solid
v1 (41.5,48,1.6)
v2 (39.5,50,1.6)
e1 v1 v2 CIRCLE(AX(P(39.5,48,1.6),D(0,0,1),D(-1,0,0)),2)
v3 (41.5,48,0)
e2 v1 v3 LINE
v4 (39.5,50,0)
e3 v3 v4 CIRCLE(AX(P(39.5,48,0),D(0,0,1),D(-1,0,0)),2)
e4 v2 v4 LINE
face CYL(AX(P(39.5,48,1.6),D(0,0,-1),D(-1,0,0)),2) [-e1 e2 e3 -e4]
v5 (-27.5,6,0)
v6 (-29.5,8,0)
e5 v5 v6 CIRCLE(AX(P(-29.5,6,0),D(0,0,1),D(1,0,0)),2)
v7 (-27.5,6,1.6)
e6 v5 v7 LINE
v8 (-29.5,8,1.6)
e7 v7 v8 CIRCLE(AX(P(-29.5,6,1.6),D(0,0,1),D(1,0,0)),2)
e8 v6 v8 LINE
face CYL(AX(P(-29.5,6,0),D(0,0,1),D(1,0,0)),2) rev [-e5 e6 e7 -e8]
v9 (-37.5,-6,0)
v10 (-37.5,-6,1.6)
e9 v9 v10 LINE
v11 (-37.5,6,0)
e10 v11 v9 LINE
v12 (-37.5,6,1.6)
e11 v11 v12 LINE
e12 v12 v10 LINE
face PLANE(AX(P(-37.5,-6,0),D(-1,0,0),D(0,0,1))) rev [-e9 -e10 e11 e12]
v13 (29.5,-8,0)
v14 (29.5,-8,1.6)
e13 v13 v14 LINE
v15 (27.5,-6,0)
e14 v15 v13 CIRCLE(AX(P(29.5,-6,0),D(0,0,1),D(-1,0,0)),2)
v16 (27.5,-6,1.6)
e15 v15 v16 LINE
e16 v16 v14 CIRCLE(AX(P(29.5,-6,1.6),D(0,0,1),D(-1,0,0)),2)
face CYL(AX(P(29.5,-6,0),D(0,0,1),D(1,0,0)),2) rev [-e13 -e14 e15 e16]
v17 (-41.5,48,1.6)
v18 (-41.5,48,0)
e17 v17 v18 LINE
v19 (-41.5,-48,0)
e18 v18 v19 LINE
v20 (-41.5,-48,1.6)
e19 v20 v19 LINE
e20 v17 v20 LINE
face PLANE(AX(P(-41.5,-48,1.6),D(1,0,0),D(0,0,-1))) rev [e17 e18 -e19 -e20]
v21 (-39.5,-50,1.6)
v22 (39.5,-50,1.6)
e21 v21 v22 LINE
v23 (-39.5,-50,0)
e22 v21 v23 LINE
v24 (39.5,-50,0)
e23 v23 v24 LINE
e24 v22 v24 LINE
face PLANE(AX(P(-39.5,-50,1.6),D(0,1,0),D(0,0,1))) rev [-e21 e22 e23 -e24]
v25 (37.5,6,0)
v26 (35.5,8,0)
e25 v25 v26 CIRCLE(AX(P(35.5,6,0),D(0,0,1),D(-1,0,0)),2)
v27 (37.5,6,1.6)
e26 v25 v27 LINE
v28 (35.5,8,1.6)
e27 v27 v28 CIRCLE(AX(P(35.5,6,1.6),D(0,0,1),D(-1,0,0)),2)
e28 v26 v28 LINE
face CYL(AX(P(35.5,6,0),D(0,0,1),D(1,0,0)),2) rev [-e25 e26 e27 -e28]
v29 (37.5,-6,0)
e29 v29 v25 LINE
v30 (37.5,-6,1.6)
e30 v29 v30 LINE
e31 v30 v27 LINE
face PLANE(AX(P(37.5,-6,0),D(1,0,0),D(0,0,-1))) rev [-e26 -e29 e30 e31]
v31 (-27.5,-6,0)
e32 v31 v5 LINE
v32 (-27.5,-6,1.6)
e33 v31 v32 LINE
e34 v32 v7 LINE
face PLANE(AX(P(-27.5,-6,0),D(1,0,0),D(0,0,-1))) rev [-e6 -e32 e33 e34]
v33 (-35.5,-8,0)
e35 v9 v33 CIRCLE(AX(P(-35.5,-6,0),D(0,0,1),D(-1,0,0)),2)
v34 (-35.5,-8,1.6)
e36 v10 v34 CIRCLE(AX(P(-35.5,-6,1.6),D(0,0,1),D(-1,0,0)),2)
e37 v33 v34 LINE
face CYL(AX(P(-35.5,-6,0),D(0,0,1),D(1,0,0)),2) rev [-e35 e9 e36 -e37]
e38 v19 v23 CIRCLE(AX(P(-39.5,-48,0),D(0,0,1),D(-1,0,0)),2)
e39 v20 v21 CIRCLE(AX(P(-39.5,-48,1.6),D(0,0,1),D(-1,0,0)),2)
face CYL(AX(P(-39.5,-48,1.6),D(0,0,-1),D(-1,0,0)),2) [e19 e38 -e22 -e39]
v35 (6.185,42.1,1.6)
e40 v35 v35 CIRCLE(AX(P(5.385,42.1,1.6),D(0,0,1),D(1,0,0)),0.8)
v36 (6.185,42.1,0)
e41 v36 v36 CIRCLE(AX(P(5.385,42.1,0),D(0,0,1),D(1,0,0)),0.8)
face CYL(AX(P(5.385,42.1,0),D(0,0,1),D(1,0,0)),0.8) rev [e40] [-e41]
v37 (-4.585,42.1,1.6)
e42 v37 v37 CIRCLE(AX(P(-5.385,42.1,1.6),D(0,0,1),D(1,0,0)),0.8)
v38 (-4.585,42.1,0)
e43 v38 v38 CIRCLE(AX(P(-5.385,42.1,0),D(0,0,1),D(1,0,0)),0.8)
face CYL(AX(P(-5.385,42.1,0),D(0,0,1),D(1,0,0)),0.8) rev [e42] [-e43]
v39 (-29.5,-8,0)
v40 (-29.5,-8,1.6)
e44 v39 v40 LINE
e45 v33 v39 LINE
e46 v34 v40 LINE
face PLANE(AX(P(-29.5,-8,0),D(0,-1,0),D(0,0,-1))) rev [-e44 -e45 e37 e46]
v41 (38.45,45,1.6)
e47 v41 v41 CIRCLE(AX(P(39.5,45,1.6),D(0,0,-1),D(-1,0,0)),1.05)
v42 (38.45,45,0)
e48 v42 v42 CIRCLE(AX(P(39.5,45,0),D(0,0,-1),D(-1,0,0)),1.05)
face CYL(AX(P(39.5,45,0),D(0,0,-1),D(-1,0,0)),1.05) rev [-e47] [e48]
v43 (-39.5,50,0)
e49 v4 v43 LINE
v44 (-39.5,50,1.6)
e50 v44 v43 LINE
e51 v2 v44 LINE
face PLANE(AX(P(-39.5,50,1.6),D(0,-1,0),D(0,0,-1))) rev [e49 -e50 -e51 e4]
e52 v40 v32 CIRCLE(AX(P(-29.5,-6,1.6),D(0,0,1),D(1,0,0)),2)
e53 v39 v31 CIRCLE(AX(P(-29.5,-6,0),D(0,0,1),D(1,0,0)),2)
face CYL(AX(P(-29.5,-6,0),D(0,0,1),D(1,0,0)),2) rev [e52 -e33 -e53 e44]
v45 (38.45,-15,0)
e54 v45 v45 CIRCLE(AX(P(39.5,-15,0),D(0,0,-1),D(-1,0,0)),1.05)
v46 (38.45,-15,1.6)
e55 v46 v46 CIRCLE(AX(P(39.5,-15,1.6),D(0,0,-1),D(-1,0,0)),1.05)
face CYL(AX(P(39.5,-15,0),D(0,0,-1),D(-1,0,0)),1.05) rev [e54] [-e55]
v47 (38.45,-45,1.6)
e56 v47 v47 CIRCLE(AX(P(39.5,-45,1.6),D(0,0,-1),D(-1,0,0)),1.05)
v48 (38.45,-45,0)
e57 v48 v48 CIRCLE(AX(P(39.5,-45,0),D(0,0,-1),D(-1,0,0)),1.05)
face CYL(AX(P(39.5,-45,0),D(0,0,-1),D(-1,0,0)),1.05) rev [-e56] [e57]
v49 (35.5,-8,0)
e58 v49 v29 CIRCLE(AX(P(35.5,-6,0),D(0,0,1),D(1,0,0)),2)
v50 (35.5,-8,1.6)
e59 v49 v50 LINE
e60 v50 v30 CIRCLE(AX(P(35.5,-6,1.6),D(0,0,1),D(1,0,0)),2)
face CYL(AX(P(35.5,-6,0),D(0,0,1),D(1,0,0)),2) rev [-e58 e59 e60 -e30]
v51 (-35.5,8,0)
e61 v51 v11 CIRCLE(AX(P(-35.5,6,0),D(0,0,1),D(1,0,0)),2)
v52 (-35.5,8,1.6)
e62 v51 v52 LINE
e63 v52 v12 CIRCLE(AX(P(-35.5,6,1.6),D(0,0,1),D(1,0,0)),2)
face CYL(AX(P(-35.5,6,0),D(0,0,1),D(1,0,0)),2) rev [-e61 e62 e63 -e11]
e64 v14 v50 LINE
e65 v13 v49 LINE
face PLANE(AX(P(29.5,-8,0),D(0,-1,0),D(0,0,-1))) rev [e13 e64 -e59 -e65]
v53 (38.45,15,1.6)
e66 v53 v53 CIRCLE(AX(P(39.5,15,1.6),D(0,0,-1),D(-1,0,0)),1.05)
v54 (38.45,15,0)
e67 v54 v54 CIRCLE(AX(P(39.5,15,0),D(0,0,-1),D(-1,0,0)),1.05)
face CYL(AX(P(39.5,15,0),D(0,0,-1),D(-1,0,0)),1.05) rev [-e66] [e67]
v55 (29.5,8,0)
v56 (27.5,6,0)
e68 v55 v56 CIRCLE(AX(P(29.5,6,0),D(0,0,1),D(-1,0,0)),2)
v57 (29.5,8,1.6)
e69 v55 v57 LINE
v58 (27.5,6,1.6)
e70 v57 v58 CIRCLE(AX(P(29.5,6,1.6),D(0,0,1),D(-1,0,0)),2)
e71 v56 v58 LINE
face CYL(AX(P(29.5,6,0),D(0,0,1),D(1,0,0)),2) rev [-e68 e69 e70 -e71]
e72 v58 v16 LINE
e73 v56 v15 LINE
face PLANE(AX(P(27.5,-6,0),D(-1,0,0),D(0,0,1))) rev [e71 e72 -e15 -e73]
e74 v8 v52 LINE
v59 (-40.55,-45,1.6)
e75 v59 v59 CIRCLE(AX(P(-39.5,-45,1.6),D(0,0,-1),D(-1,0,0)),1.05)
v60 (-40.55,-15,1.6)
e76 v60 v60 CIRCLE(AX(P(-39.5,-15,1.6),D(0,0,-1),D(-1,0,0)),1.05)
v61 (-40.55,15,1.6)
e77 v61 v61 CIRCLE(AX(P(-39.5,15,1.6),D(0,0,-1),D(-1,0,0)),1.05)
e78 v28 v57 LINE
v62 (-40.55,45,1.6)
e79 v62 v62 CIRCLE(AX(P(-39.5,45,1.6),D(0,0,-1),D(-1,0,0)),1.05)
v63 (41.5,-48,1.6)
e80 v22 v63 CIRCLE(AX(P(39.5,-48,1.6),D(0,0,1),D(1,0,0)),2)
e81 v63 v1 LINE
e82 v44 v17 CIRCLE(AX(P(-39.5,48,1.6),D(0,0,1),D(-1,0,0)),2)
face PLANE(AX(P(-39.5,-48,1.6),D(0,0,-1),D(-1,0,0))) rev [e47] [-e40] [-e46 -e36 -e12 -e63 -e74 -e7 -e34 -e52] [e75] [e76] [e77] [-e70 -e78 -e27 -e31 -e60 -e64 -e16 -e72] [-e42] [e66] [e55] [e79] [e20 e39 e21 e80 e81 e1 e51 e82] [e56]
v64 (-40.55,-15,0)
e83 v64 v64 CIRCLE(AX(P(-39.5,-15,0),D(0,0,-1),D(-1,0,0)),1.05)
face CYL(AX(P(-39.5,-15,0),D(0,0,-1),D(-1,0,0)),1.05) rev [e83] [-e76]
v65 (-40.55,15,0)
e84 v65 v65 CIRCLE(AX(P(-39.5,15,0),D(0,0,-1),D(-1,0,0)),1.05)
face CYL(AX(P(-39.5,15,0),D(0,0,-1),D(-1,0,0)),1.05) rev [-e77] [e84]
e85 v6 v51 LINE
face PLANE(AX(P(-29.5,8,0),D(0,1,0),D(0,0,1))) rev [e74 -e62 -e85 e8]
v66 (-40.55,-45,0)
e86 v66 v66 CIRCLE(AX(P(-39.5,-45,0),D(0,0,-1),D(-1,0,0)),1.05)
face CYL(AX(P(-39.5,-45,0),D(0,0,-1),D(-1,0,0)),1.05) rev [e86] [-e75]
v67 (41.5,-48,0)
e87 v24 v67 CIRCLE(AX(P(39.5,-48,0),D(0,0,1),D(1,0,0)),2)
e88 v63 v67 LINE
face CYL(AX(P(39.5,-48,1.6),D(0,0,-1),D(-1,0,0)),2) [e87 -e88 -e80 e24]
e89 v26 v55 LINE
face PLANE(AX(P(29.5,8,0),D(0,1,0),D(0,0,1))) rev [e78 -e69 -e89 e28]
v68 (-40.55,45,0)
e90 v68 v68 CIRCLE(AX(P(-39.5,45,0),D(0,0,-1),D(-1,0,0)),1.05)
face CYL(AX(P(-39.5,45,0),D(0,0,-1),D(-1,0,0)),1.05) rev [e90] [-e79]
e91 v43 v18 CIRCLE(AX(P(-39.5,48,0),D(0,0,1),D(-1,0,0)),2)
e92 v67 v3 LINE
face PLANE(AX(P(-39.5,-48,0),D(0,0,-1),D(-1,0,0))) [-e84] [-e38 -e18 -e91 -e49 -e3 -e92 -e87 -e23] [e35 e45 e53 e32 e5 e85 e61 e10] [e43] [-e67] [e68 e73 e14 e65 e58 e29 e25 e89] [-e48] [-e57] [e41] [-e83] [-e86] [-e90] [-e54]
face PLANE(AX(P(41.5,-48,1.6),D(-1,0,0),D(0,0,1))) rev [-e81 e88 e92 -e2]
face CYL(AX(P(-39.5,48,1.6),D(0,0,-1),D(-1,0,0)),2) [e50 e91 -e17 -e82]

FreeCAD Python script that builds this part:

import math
import FreeCAD as App
import Part
import Sketcher
Q = App.Units.Quantity

doc = App.newDocument("Part")
body = doc.addObject("PartDesign::Body", "Body")

# Sketch on XY plane
sketch1 = body.newObject("Sketcher::SketchObject", "Sketch")
sketch1.AttachmentSupport = (doc.getObject("XY_Plane"), [""])
sketch1.MapMode = "FlatFace"
sketch1.addGeometry([
    Part.LineSegment(App.Vector(-39.5, -50, 0), App.Vector(39.5, -50, 0)),  # 0
    Part.ArcOfCircle(Part.Circle(App.Vector(39.5, -48, 0), App.Vector(0, 0, 1), 2), math.radians(-90), math.radians(0)),  # 1
    Part.LineSegment(App.Vector(41.5, -48, 0), App.Vector(41.5, 48, 0)),  # 2
    Part.ArcOfCircle(Part.Circle(App.Vector(39.5, 48, 0), App.Vector(0, 0, 1), 2), math.radians(0), math.radians(90)),  # 3
    Part.LineSegment(App.Vector(39.5, 50, 0), App.Vector(-39.5, 50, 0)),  # 4
    Part.ArcOfCircle(Part.Circle(App.Vector(-39.5, 48, 0), App.Vector(0, 0, 1), 2), math.radians(90), math.radians(180)),  # 5
    Part.LineSegment(App.Vector(-41.5, 48, 0), App.Vector(-41.5, -48, 0)),  # 6
    Part.ArcOfCircle(Part.Circle(App.Vector(-39.5, -48, 0), App.Vector(0, 0, 1), 2), math.radians(-180), math.radians(-90)),  # 7
], False)
sketch1.addConstraint([
    Sketcher.Constraint("Tangent", 0, 2, 1, 1),
    Sketcher.Constraint("Tangent", 1, 2, 2, 1),
    Sketcher.Constraint("Tangent", 2, 2, 3, 1),
    Sketcher.Constraint("Tangent", 3, 2, 4, 1),
    Sketcher.Constraint("Tangent", 4, 2, 5, 1),
    Sketcher.Constraint("Tangent", 5, 2, 6, 1),
    Sketcher.Constraint("Tangent", 6, 2, 7, 1),
    Sketcher.Constraint("Tangent", 7, 2, 0, 1),
    Sketcher.Constraint("Horizontal", 0),
    Sketcher.Constraint("Vertical", 2),
    Sketcher.Constraint("Horizontal", 4),
    Sketcher.Constraint("Vertical", 6),
    Sketcher.Constraint("Equal", 1, 3),
    Sketcher.Constraint("Equal", 3, 5),
    Sketcher.Constraint("Equal", 5, 7),
    Sketcher.Constraint("Symmetric", 1, 3, 5, 3, -1, 1),
    Sketcher.Constraint("Radius", 1, Q("2 mm")),
    Sketcher.Constraint("DistanceX", 0, 1, 0, 2, Q("79 mm")),
    Sketcher.Constraint("DistanceY", 2, 1, 2, 2, Q("96 mm")),
])
pad1 = body.newObject("PartDesign::Pad", "Pad")
pad1.Profile = sketch1
pad1.Length = 1.6

# Sketch on XY plane
sketch2 = body.newObject("Sketcher::SketchObject", "Sketch001")
sketch2.AttachmentSupport = (doc.getObject("XY_Plane"), [""])
sketch2.MapMode = "FlatFace"
sketch2.AttachmentOffset = App.Placement(App.Vector(0, 0, 1.6), App.Rotation())
sketch2.addGeometry([
    Part.Circle(App.Vector(-5.385, 42.1, 0), App.Vector(0, 0, 1), 0.8),
    Part.Circle(App.Vector(5.385, 42.1, 0), App.Vector(0, 0, 1), 0.8),
], False)
sketch2.addConstraint([
    Sketcher.Constraint("Equal", 0, 1),
    Sketcher.Constraint("Symmetric", 0, 3, 1, 3, -2),
    Sketcher.Constraint("Diameter", 0, Q("1.6 mm")),
    Sketcher.Constraint("DistanceY", -1, 1, 0, 3, Q("42.1 mm")),
    Sketcher.Constraint("DistanceX", 0, 3, 1, 3, Q("10.77 mm")),
])
pocket1 = body.newObject("PartDesign::Pocket", "Pocket")
pocket1.Profile = sketch2
pocket1.Type = "ThroughAll"

# Sketch on XY plane
sketch3 = body.newObject("Sketcher::SketchObject", "Sketch002")
sketch3.AttachmentSupport = (doc.getObject("XY_Plane"), [""])
sketch3.MapMode = "FlatFace"
sketch3.AttachmentOffset = App.Placement(App.Vector(0, 0, 1.6), App.Rotation())
sketch3.addGeometry([
    Part.LineSegment(App.Vector(37.5, -6, 0), App.Vector(37.5, 6, 0)),  # 0
    Part.ArcOfCircle(Part.Circle(App.Vector(35.5, 6, 0), App.Vector(0, 0, 1), 2), math.radians(0), math.radians(90)),  # 1
    Part.LineSegment(App.Vector(35.5, 8, 0), App.Vector(29.5, 8, 0)),  # 2
    Part.ArcOfCircle(Part.Circle(App.Vector(29.5, 6, 0), App.Vector(0, 0, 1), 2), math.radians(90), math.radians(180)),  # 3
    Part.LineSegment(App.Vector(27.5, 6, 0), App.Vector(27.5, -6, 0)),  # 4
    Part.ArcOfCircle(Part.Circle(App.Vector(29.5, -6, 0), App.Vector(0, 0, 1), 2), math.radians(-180), math.radians(-90)),  # 5
    Part.LineSegment(App.Vector(29.5, -8, 0), App.Vector(35.5, -8, 0)),  # 6
    Part.ArcOfCircle(Part.Circle(App.Vector(35.5, -6, 0), App.Vector(0, 0, 1), 2), math.radians(-90), math.radians(0)),  # 7
    Part.LineSegment(App.Vector(-35.5, -8, 0), App.Vector(-29.5, -8, 0)),  # 8
    Part.ArcOfCircle(Part.Circle(App.Vector(-29.5, -6, 0), App.Vector(0, 0, 1), 2), math.radians(-90), math.radians(0)),  # 9
    Part.LineSegment(App.Vector(-27.5, -6, 0), App.Vector(-27.5, 6, 0)),  # 10
    Part.ArcOfCircle(Part.Circle(App.Vector(-29.5, 6, 0), App.Vector(0, 0, 1), 2), math.radians(0), math.radians(90)),  # 11
    Part.LineSegment(App.Vector(-29.5, 8, 0), App.Vector(-35.5, 8, 0)),  # 12
    Part.ArcOfCircle(Part.Circle(App.Vector(-35.5, 6, 0), App.Vector(0, 0, 1), 2), math.radians(90), math.radians(180)),  # 13
    Part.LineSegment(App.Vector(-37.5, 6, 0), App.Vector(-37.5, -6, 0)),  # 14
    Part.ArcOfCircle(Part.Circle(App.Vector(-35.5, -6, 0), App.Vector(0, 0, 1), 2), math.radians(-180), math.radians(-90)),  # 15
], False)
sketch3.addConstraint([
    Sketcher.Constraint("Tangent", 0, 2, 1, 1),
    Sketcher.Constraint("Tangent", 1, 2, 2, 1),
    Sketcher.Constraint("Tangent", 2, 2, 3, 1),
    Sketcher.Constraint("Tangent", 3, 2, 4, 1),
    Sketcher.Constraint("Tangent", 4, 2, 5, 1),
    Sketcher.Constraint("Tangent", 5, 2, 6, 1),
    Sketcher.Constraint("Tangent", 6, 2, 7, 1),
    Sketcher.Constraint("Tangent", 7, 2, 0, 1),
    Sketcher.Constraint("Tangent", 8, 2, 9, 1),
    Sketcher.Constraint("Tangent", 9, 2, 10, 1),
    Sketcher.Constraint("Tangent", 10, 2, 11, 1),
    Sketcher.Constraint("Tangent", 11, 2, 12, 1),
    Sketcher.Constraint("Tangent", 12, 2, 13, 1),
    Sketcher.Constraint("Tangent", 13, 2, 14, 1),
    Sketcher.Constraint("Tangent", 14, 2, 15, 1),
    Sketcher.Constraint("Tangent", 15, 2, 8, 1),
    Sketcher.Constraint("Vertical", 0),
    Sketcher.Constraint("Horizontal", 2),
    Sketcher.Constraint("Vertical", 4),
    Sketcher.Constraint("Horizontal", 6),
    Sketcher.Constraint("Horizontal", 8),
    Sketcher.Constraint("Vertical", 10),
    Sketcher.Constraint("Horizontal", 12),
    Sketcher.Constraint("Vertical", 14),
    Sketcher.Constraint("Equal", 1, 3),
    Sketcher.Constraint("Equal", 3, 5),
    Sketcher.Constraint("Equal", 5, 7),
    Sketcher.Constraint("Equal", 7, 9),
    Sketcher.Constraint("Equal", 9, 11),
    Sketcher.Constraint("Equal", 11, 13),
    Sketcher.Constraint("Equal", 13, 15),
    Sketcher.Constraint("Symmetric", 3, 3, 9, 3, -1, 1),
    Sketcher.Constraint("Symmetric", 7, 3, 13, 3, -1, 1),
    Sketcher.Constraint("Horizontal", 7, 3, 9, 3),
    Sketcher.Constraint("Radius", 1, Q("2 mm")),
    Sketcher.Constraint("DistanceX", 2, 2, 2, 1, Q("6 mm")),
    Sketcher.Constraint("DistanceY", 0, 1, 0, 2, Q("12 mm")),
    Sketcher.Constraint("DistanceX", 9, 3, 5, 3, Q("59 mm")),
])
pocket2 = body.newObject("PartDesign::Pocket", "Pocket001")
pocket2.Profile = sketch3
pocket2.Type = "ThroughAll"

# Sketch on XY plane
sketch4 = body.newObject("Sketcher::SketchObject", "Sketch003")
sketch4.AttachmentSupport = (doc.getObject("XY_Plane"), [""])
sketch4.MapMode = "FlatFace"
sketch4.addGeometry([
    Part.Circle(App.Vector(-39.5, 45, 0), App.Vector(0, 0, 1), 1.05),
    Part.Circle(App.Vector(-39.5, -15, 0), App.Vector(0, 0, 1), 1.05),
    Part.Circle(App.Vector(-39.5, -45, 0), App.Vector(0, 0, 1), 1.05),
    Part.Circle(App.Vector(-39.5, 15, 0), App.Vector(0, 0, 1), 1.05),
], False)
sketch4.addConstraint([
    Sketcher.Constraint("Equal", 0, 1),
    Sketcher.Constraint("Equal", 1, 2),
    Sketcher.Constraint("Equal", 2, 3),
    Sketcher.Constraint("Symmetric", 0, 3, 2, 3, -1),
    Sketcher.Constraint("Symmetric", 1, 3, 3, 3, -1),
    Sketcher.Constraint("Vertical", 0, 3, 1, 3),
    Sketcher.Constraint("Diameter", 0, Q("2.1 mm")),
    Sketcher.Constraint("DistanceY", -1, 1, 0, 3, Q("45 mm")),
    Sketcher.Constraint("DistanceY", 1, 3, -1, 1, Q("15 mm")),
    Sketcher.Constraint("DistanceX", 0, 3, -1, 1, Q("39.5 mm")),
])
doc.recompute()
hole = body.newObject("PartDesign::Hole", "Hole")
hole.Profile = sketch4
hole.ThreadType = "None"
hole.Diameter = 2.1
hole.DepthType = "ThroughAll"
hole.Reversed = True
doc.recompute()

mirrored = body.newObject("PartDesign::Mirrored", "Mirrored")
mirrored.Originals = [hole]
mirrored.MirrorPlane = (doc.getObject("YZ_Plane"), [""])
body.Tip = mirrored

doc.recompute()
